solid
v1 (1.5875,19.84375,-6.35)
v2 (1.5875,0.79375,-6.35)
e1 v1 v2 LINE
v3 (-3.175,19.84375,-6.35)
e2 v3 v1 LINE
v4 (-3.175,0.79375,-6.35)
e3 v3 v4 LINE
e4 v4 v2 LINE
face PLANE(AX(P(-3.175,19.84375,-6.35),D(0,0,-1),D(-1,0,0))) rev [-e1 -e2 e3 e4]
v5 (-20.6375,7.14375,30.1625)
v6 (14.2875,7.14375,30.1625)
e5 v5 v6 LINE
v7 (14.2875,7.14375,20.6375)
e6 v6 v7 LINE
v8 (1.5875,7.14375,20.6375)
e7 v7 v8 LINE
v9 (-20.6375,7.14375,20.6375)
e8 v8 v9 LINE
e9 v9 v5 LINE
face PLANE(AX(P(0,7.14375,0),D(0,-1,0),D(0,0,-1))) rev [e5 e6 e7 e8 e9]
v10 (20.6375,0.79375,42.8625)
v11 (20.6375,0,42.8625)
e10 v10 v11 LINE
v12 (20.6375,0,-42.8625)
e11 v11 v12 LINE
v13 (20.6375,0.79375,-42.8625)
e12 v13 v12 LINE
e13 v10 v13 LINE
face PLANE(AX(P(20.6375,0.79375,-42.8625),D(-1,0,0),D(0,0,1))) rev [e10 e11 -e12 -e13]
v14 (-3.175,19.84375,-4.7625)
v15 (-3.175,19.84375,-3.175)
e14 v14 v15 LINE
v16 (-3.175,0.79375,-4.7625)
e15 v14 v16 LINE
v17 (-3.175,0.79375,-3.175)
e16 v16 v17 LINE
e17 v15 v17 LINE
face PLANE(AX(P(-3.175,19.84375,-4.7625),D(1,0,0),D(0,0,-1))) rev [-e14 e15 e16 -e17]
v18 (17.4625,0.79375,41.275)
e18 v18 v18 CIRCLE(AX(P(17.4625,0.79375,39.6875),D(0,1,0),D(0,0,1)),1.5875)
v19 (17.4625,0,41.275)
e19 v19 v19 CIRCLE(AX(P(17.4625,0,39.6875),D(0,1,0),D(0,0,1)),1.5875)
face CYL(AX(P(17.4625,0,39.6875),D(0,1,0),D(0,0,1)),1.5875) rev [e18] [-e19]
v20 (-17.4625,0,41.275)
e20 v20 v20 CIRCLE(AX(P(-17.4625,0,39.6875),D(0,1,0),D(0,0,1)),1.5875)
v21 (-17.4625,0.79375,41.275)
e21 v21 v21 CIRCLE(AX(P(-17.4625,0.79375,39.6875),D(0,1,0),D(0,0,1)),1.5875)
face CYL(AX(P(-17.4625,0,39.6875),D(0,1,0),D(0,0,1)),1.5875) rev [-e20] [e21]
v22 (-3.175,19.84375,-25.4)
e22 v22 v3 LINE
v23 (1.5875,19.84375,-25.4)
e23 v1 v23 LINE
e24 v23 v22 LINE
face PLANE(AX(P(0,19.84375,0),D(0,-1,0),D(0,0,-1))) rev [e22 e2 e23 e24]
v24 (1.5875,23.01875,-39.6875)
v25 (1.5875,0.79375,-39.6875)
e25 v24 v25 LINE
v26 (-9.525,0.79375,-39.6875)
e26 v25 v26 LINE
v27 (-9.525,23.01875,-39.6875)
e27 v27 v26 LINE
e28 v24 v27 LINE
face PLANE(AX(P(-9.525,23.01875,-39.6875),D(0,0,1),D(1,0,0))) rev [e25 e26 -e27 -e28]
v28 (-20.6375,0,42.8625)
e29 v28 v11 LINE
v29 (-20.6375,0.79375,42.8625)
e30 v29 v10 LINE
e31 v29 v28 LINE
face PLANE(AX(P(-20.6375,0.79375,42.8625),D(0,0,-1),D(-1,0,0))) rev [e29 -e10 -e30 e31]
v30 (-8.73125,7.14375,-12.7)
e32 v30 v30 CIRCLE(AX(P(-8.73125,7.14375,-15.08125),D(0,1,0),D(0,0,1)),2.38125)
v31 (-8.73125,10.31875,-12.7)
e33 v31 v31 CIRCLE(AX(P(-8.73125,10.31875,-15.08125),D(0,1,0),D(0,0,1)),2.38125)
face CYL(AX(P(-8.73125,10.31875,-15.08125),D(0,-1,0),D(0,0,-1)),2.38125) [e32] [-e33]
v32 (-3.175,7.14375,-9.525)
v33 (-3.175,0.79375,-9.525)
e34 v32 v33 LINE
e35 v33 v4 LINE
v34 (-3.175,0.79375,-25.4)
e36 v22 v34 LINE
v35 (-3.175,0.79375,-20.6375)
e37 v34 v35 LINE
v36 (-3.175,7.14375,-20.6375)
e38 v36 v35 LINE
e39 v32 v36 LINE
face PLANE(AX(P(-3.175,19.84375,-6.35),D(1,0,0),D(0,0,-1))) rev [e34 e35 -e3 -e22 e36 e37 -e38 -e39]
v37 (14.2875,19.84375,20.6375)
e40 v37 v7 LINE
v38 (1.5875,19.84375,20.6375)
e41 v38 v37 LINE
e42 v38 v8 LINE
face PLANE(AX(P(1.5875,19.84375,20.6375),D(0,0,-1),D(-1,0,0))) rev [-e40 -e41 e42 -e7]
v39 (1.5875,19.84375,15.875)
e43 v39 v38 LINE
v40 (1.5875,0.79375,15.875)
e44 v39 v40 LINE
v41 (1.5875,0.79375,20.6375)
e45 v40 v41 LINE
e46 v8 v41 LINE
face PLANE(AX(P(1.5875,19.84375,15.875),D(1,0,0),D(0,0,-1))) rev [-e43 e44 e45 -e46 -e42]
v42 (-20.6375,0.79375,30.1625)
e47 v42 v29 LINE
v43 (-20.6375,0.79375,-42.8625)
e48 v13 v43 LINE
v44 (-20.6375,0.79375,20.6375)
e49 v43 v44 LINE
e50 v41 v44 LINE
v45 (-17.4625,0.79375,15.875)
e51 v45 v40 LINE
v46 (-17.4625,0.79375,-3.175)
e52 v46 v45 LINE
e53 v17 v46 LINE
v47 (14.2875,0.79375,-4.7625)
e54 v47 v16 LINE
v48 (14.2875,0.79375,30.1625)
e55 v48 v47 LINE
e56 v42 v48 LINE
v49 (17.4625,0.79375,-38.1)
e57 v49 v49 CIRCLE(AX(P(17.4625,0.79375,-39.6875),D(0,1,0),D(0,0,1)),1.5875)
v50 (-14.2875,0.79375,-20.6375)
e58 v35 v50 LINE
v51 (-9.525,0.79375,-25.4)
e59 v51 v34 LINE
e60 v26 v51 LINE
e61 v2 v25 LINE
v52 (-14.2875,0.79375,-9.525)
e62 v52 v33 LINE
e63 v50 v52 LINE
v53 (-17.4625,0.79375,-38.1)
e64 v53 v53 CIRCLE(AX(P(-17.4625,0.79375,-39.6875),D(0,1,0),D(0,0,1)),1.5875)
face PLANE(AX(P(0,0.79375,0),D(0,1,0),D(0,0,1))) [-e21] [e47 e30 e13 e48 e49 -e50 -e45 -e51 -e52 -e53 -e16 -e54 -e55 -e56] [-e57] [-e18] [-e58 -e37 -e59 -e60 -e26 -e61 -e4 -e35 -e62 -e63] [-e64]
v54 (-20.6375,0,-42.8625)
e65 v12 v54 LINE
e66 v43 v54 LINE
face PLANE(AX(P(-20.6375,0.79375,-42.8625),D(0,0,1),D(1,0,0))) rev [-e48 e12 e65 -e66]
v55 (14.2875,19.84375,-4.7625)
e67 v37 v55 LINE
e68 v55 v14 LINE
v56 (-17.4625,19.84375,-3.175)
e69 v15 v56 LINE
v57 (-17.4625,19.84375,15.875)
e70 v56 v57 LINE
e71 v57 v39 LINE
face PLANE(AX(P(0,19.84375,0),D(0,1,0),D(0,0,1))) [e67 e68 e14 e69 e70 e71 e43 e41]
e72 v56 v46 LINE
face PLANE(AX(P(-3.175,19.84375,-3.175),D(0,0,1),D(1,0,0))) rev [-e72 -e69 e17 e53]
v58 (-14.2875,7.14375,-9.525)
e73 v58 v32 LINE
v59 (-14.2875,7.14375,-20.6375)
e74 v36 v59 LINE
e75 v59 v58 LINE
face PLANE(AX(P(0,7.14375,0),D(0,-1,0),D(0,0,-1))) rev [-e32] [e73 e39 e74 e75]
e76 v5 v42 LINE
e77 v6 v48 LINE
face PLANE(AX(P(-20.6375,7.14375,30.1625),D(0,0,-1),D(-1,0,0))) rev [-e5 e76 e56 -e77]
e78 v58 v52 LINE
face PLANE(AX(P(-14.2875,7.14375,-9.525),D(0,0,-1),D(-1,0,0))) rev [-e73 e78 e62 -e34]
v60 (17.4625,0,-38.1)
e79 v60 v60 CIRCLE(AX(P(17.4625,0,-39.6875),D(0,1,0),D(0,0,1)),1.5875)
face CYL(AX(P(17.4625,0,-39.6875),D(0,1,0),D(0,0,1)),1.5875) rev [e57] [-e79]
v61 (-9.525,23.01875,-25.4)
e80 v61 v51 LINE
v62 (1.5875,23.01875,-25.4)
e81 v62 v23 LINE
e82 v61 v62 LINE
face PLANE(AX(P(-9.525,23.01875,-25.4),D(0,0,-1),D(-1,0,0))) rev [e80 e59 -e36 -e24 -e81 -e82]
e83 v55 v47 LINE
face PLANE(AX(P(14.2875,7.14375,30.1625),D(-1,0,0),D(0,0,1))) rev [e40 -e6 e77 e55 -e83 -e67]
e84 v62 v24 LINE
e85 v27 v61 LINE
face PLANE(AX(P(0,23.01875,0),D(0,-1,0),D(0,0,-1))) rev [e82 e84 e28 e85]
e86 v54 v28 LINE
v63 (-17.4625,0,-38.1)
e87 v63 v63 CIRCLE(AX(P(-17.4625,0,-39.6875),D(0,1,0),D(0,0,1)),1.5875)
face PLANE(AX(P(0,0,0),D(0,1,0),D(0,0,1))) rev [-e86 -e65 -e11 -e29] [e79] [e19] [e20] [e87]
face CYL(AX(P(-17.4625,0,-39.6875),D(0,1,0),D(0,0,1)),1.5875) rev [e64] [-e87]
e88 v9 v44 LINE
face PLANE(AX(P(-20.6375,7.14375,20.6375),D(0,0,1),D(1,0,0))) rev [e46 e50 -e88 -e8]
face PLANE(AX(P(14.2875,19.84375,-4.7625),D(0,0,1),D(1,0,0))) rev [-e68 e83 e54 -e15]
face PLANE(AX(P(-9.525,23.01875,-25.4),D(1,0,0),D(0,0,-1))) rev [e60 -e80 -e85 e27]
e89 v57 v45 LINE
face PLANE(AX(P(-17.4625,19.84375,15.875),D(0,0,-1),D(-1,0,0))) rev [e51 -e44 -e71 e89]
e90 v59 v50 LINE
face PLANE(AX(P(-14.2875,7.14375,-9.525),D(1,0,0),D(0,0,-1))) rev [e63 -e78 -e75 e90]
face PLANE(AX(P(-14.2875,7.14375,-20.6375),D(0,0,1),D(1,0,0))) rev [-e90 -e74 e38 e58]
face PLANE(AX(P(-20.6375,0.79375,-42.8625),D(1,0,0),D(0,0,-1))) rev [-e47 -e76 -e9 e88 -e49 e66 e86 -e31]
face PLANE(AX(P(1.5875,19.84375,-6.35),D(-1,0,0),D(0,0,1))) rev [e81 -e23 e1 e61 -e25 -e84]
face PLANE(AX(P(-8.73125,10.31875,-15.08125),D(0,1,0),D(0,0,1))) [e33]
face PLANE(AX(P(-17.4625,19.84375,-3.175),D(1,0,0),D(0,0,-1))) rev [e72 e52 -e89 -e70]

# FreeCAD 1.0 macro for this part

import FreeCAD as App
import Part
import Sketcher
Q = App.Units.Quantity


def add_polygon(sketch, points):
    """Adds a closed chain of lines whose ends are joined by coincident constraints."""
    first, n = sketch.GeometryCount, len(points)
    for a, b in zip(points, points[1:] + points[:1]):
        sketch.addGeometry(Part.LineSegment(App.Vector(*a, 0), App.Vector(*b, 0)), False)
    for i in range(n):
        sketch.addConstraint(Sketcher.Constraint("Coincident", first + i, 2, first + (i + 1) % n, 1))

doc = App.newDocument("Part")
body = doc.addObject("PartDesign::Body", "Body")

# Sketch on XZ plane
sketch1 = body.newObject("Sketcher::SketchObject", "Sketch")
sketch1.AttachmentSupport = (doc.getObject("XZ_Plane"), [""])
sketch1.MapMode = "FlatFace"
add_polygon(sketch1, [(-21, -43), (-21, 43), (21, 43), (21, -43)])  # lines 0-3
sketch1.addConstraint(Sketcher.Constraint("Vertical", 0))
sketch1.addConstraint(Sketcher.Constraint("Horizontal", 1))
sketch1.addConstraint(Sketcher.Constraint("Vertical", 2))
sketch1.addConstraint(Sketcher.Constraint("Horizontal", 3))
sketch1.addConstraint(Sketcher.Constraint("Symmetric", 0, 2, 2, 2, -1, 1))
sketch1.addConstraint(Sketcher.Constraint("DistanceX", 1, 1, 1, 2, Q("1.625 in")))
sketch1.addConstraint(Sketcher.Constraint("DistanceY", 0, 1, 0, 2, Q("3.375 in")))
pad1 = body.newObject("PartDesign::Pad", "Pad")
pad1.Profile = sketch1
pad1.Length = Q("0.03125 in")
pad1.Reversed = True

# Sketch on XZ plane
sketch2 = body.newObject("Sketcher::SketchObject", "Sketch001")
sketch2.AttachmentSupport = (doc.getObject("XZ_Plane"), [""])
sketch2.MapMode = "FlatFace"
sketch2.AttachmentOffset = App.Placement(App.Vector(0, 0, -0.03125 * 25.4), App.Rotation())
add_polygon(sketch2, [(-21, 21), (-21, 30), (14, 30), (14, 21)])  # lines 0-3
sketch2.addConstraint(Sketcher.Constraint("Vertical", 0))
sketch2.addConstraint(Sketcher.Constraint("Horizontal", 1))
sketch2.addConstraint(Sketcher.Constraint("Vertical", 2))
sketch2.addConstraint(Sketcher.Constraint("Horizontal", 3))
sketch2.addConstraint(Sketcher.Constraint("DistanceX", 1, 1, 1, 2, Q("1.375 in")))
sketch2.addConstraint(Sketcher.Constraint("DistanceY", 0, 1, 0, 2, Q("0.375 in")))
sketch2.addConstraint(Sketcher.Constraint("DistanceX", 0, 2, -1, 1, Q("0.8125 in")))
sketch2.addConstraint(Sketcher.Constraint("DistanceY", -1, 1, 0, 2, Q("1.1875 in")))
pad2 = body.newObject("PartDesign::Pad", "Pad001")
pad2.Profile = sketch2
pad2.Length = Q("0.25 in")
pad2.Reversed = True

# Sketch on XZ plane
sketch3 = body.newObject("Sketcher::SketchObject", "Sketch002")
sketch3.AttachmentSupport = (doc.getObject("XZ_Plane"), [""])
sketch3.MapMode = "FlatFace"
sketch3.AttachmentOffset = App.Placement(App.Vector(0, 0, -0.03125 * 25.4), App.Rotation())
add_polygon(sketch3, [(14.3, 20.6), (14.3, -4.8), (-3.2, -4.8), (-3.2, -3.2), (-17.5, -3.2), (-17.5, 15.9), (1.6, 15.9), (1.6, 20.6)])  # lines 0-7
sketch3.addConstraint(Sketcher.Constraint("Vertical", 0))
sketch3.addConstraint(Sketcher.Constraint("Horizontal", 1))
sketch3.addConstraint(Sketcher.Constraint("Vertical", 2))
sketch3.addConstraint(Sketcher.Constraint("Horizontal", 3))
sketch3.addConstraint(Sketcher.Constraint("Vertical", 4))
sketch3.addConstraint(Sketcher.Constraint("Horizontal", 5))
sketch3.addConstraint(Sketcher.Constraint("Vertical", 6))
sketch3.addConstraint(Sketcher.Constraint("Horizontal", 7))
sketch3.addConstraint(Sketcher.Constraint("Equal", 5, 4))
sketch3.addConstraint(Sketcher.Constraint("DistanceY", 0, 2, 0, 1, Q("1 in")))
sketch3.addConstraint(Sketcher.Constraint("DistanceX", 7, 1, 7, 2, Q("0.5 in")))
sketch3.addConstraint(Sketcher.Constraint("DistanceX", 5, 1, 5, 2, Q("0.75 in")))
sketch3.addConstraint(Sketcher.Constraint("DistanceX", 1, 2, 1, 1, Q("0.6875 in")))
sketch3.addConstraint(Sketcher.Constraint("DistanceY", 2, 1, 2, 2, Q("0.0625 in")))
sketch3.addConstraint(Sketcher.Constraint("DistanceX", -1, 1, 0, 2, Q("0.5625 in")))
sketch3.addConstraint(Sketcher.Constraint("DistanceY", 0, 2, -1, 1, Q("0.1875 in")))
pad3 = body.newObject("PartDesign::Pad", "Pad002")
pad3.Profile = sketch3
pad3.Length = Q("0.75 in")
pad3.Reversed = True

# Sketch on XZ plane
sketch4 = body.newObject("Sketcher::SketchObject", "Sketch003")
sketch4.AttachmentSupport = (doc.getObject("XZ_Plane"), [""])
sketch4.MapMode = "FlatFace"
sketch4.AttachmentOffset = App.Placement(App.Vector(0, 0, -0.03125 * 25.4), App.Rotation())
add_polygon(sketch4, [(-14, -21), (-14, -10), (-3, -10), (-3, -21)])  # lines 0-3
sketch4.addConstraint(Sketcher.Constraint("Vertical", 0))
sketch4.addConstraint(Sketcher.Constraint("Horizontal", 1))
sketch4.addConstraint(Sketcher.Constraint("Vertical", 2))
sketch4.addConstraint(Sketcher.Constraint("Horizontal", 3))
sketch4.addConstraint(Sketcher.Constraint("Equal", 3, 0))
sketch4.addConstraint(Sketcher.Constraint("DistanceX", 1, 1, 1, 2, Q("0.4375 in")))
sketch4.addConstraint(Sketcher.Constraint("DistanceX", 0, 2, -1, 1, Q("0.5625 in")))
sketch4.addConstraint(Sketcher.Constraint("DistanceY", 0, 2, -1, 1, Q("0.375 in")))
pad4 = body.newObject("PartDesign::Pad", "Pad003")
pad4.Profile = sketch4
pad4.Length = Q("0.25 in")
pad4.Reversed = True

# Sketch on XZ plane
sketch5 = body.newObject("Sketcher::SketchObject", "Sketch004")
sketch5.AttachmentSupport = (doc.getObject("XZ_Plane"), [""])
sketch5.MapMode = "FlatFace"
sketch5.AttachmentOffset = App.Placement(App.Vector(0, 0, -0.28125 * 25.4), App.Rotation())
sketch5.addGeometry(Part.Circle(App.Vector(-8.7, -15.1, 0), App.Vector(0, 0, 1), 2.4), False)
sketch5.addConstraint(Sketcher.Constraint("Diameter", 0, Q("0.1875 in")))
sketch5.addConstraint(Sketcher.Constraint("DistanceX", 0, 3, -1, 1, Q("0.34375 in")))
sketch5.addConstraint(Sketcher.Constraint("DistanceY", 0, 3, -1, 1, Q("0.59375 in")))
pad5 = body.newObject("PartDesign::Pad", "Pad004")
pad5.Profile = sketch5
pad5.Length = Q("0.125 in")
pad5.Reversed = True

# Sketch on XZ plane
sketch6 = body.newObject("Sketcher::SketchObject", "Sketch005")
sketch6.AttachmentSupport = (doc.getObject("XZ_Plane"), [""])
sketch6.MapMode = "FlatFace"
sketch6.AttachmentOffset = App.Placement(App.Vector(0, 0, -0.03125 * 25.4), App.Rotation())
add_polygon(sketch6, [(-3.2, -25.4), (-3.2, -6.3), (1.6, -6.3), (1.6, -25.4)])  # lines 0-3
sketch6.addConstraint(Sketcher.Constraint("Vertical", 0))
sketch6.addConstraint(Sketcher.Constraint("Horizontal", 1))
sketch6.addConstraint(Sketcher.Constraint("Vertical", 2))
sketch6.addConstraint(Sketcher.Constraint("Horizontal", 3))
sketch6.addConstraint(Sketcher.Constraint("DistanceY", 2, 2, -1, 1, Q("1 in")))
sketch6.addConstraint(Sketcher.Constraint("DistanceY", 0, 1, 0, 2, Q("0.75 in")))
sketch6.addConstraint(Sketcher.Constraint("DistanceX", 1, 1, 1, 2, Q("0.1875 in")))
sketch6.addConstraint(Sketcher.Constraint("DistanceX", 0, 2, -1, 1, Q("0.125 in")))
pad6 = body.newObject("PartDesign::Pad", "Pad005")
pad6.Profile = sketch6
pad6.Length = Q("0.75 in")
pad6.Reversed = True

# Sketch on XZ plane
sketch7 = body.newObject("Sketcher::SketchObject", "Sketch006")
sketch7.AttachmentSupport = (doc.getObject("XZ_Plane"), [""])
sketch7.MapMode = "FlatFace"
sketch7.AttachmentOffset = App.Placement(App.Vector(0, 0, -0.03125 * 25.4), App.Rotation())
add_polygon(sketch7, [(-10, -40), (-10, -25), (2, -25), (2, -40)])  # lines 0-3
sketch7.addConstraint(Sketcher.Constraint("Vertical", 0))
sketch7.addConstraint(Sketcher.Constraint("Horizontal", 1))
sketch7.addConstraint(Sketcher.Constraint("Vertical", 2))
sketch7.addConstraint(Sketcher.Constraint("Horizontal", 3))
sketch7.addConstraint(Sketcher.Constraint("DistanceY", 0, 2, -1, 1, Q("1 in")))
sketch7.addConstraint(Sketcher.Constraint("DistanceX", 1, 1, 1, 2, Q("0.4375 in")))
sketch7.addConstraint(Sketcher.Constraint("DistanceY", 0, 1, 0, 2, Q("0.5625 in")))
sketch7.addConstraint(Sketcher.Constraint("DistanceX", 0, 2, -1, 1, Q("0.375 in")))
pad7 = body.newObject("PartDesign::Pad", "Pad006")
pad7.Profile = sketch7
pad7.Length = Q("0.875 in")
pad7.Reversed = True

# Sketch on XZ plane
sketch8 = body.newObject("Sketcher::SketchObject", "Sketch007")
sketch8.AttachmentSupport = (doc.getObject("XZ_Plane"), [""])
sketch8.MapMode = "FlatFace"
sketch8.AttachmentOffset = App.Placement(App.Vector(0, 0, -0.03125 * 25.4), App.Rotation())
sketch8.addGeometry(Part.Circle(App.Vector(-17.5, -39.7, 0), App.Vector(0, 0, 1), 1.6), False)
sketch8.addGeometry(Part.Circle(App.Vector(17.5, -39.7, 0), App.Vector(0, 0, 1), 1.6), False)
sketch8.addGeometry(Part.Circle(App.Vector(-17.5, 39.7, 0), App.Vector(0, 0, 1), 1.6), False)
sketch8.addGeometry(Part.Circle(App.Vector(17.5, 39.7, 0), App.Vector(0, 0, 1), 1.6), False)
sketch8.addConstraint(Sketcher.Constraint("Equal", 0, 1))
sketch8.addConstraint(Sketcher.Constraint("Equal", 1, 2))
sketch8.addConstraint(Sketcher.Constraint("Equal", 2, 3))
sketch8.addConstraint(Sketcher.Constraint("Symmetric", 1, 3, 2, 3, -1, 1))
sketch8.addConstraint(Sketcher.Constraint("Symmetric", 0, 3, 3, 3, -1, 1))
sketch8.addConstraint(Sketcher.Constraint("Symmetric", 0, 3, 1, 3, -2))
sketch8.addConstraint(Sketcher.Constraint("Diameter", 0, Q("0.125 in")))
sketch8.addConstraint(Sketcher.Constraint("DistanceX", 0, 3, -1, 1, Q("0.6875 in")))
sketch8.addConstraint(Sketcher.Constraint("DistanceY", 0, 3, -1, 1, Q("1.5625 in")))
pocket1 = body.newObject("PartDesign::Pocket", "Pocket")
pocket1.Profile = sketch8
pocket1.Type = "ThroughAll"
pocket1.Reversed = True

doc.recompute()
